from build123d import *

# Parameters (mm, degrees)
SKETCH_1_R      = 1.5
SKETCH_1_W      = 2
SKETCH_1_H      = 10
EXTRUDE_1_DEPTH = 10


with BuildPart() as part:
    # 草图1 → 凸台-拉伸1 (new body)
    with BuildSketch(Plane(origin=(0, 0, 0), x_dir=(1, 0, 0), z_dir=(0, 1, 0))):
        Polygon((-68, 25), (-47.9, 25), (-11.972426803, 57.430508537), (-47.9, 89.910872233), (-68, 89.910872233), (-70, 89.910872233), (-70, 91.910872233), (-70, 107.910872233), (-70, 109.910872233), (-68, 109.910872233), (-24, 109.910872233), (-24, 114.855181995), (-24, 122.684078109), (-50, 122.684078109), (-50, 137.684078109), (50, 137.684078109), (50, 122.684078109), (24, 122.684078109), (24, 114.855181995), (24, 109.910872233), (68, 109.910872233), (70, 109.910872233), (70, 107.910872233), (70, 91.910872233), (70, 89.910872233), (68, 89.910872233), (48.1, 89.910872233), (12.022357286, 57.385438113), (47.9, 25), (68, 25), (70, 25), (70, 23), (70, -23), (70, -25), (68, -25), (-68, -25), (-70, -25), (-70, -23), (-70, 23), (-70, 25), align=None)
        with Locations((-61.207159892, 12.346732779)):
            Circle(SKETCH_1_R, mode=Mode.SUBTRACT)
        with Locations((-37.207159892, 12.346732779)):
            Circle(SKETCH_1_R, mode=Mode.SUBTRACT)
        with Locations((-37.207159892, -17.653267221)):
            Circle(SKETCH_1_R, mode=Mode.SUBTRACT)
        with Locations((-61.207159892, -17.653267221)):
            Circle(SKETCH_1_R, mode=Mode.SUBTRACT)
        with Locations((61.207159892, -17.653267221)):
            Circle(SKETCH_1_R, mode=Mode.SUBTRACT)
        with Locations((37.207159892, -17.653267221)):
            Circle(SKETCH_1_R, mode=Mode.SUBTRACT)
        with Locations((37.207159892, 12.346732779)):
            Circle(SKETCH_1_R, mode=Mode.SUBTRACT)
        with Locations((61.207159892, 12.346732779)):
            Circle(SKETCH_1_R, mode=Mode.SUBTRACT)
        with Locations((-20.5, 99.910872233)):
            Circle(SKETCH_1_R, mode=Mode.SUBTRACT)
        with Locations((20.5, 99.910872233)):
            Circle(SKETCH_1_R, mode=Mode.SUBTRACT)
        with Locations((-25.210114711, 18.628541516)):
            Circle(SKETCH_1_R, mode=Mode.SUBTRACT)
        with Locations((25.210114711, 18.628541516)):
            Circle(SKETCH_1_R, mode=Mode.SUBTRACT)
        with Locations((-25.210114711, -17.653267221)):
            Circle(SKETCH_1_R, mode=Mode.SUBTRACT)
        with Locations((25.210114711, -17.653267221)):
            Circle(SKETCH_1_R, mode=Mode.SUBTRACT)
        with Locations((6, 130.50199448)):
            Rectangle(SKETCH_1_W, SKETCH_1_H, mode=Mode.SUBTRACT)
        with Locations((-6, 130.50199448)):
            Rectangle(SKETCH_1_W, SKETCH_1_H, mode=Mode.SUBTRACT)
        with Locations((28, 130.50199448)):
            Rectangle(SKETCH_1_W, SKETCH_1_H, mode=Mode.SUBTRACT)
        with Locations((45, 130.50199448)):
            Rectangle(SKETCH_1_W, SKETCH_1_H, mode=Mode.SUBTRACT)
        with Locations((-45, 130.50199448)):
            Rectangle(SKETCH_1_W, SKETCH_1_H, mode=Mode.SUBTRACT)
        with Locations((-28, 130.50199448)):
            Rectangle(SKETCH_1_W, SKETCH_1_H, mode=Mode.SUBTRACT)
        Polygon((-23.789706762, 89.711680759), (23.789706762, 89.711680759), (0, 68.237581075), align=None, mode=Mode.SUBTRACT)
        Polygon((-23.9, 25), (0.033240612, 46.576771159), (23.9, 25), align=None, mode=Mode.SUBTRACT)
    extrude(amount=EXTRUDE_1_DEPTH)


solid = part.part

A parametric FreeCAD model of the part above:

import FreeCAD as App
import Part
import Sketcher

V = App.Vector


def add_polygon(sketch, points):
    """Adds a closed chain of lines whose ends are joined by coincident constraints."""
    first, n = sketch.GeometryCount, len(points)
    for a, b in zip(points, points[1:] + points[:1]):
        sketch.addGeometry(Part.LineSegment(App.Vector(*a, 0), App.Vector(*b, 0)), False)
    for i in range(n):
        sketch.addConstraint(Sketcher.Constraint("Coincident", first + i, 2, first + (i + 1) % n, 1))

doc = App.newDocument("Part")
params = doc.addObject("Spreadsheet::Sheet", "Params")
for row, (alias, value) in enumerate([
    ("sketch1_diameter", "3 mm"),
    ("sketch1_width", "140 mm"),
    ("sketch1_width2", "46 mm"),
    ("sketch1_width3", "26 mm"),
    ("sketch1_width4", "2 mm"),
    ("pad1_length", "10 mm"),
], start=1):
    params.set(f"A{row}", alias)
    params.set(f"B{row}", "=" + value)
    params.setAlias(f"B{row}", alias)

body = doc.addObject("PartDesign::Body", "Body")

# Sketch on XZ plane
sketch1 = doc.addObject("Sketcher::SketchObject", "Sketch")
body.addObject(sketch1)
sketch1.AttachmentSupport = (doc.XZ_Plane, [""])
sketch1.MapMode = "FlatFace"
add_polygon(sketch1, [(-47.9, -25), (-70, -25), (-70, 25), (70, 25), (70, -25), (47.9, -25), (12, -57.4), (48.1, -89.9), (70, -89.9), (70, -109.9), (24, -109.9), (24, -122.7), (50, -122.7), (50, -137.7), (-50, -137.7), (-50, -122.7), (-24, -122.7), (-24, -109.9), (-70, -109.9), (-70, -89.9), (-47.9, -89.9), (-12, -57.4)])  # lines 0-21
sketch1.addGeometry(Part.Circle(V(61.2, 17.7, 0), V(0, 0, 1), 1.5), False)  # 22
sketch1.addGeometry(Part.Circle(V(37.2, 17.7, 0), V(0, 0, 1), 1.5), False)  # 23
sketch1.addGeometry(Part.Circle(V(61.2, -12.3, 0), V(0, 0, 1), 1.5), False)  # 24
sketch1.addGeometry(Part.Circle(V(37.2, -12.3, 0), V(0, 0, 1), 1.5), False)  # 25
sketch1.addGeometry(Part.Circle(V(25.2, 17.7, 0), V(0, 0, 1), 1.5), False)  # 26
sketch1.addGeometry(Part.Circle(V(25.2, -18.6, 0), V(0, 0, 1), 1.5), False)  # 27
sketch1.addGeometry(Part.Circle(V(-25.2, 17.7, 0), V(0, 0, 1), 1.5), False)  # 28
sketch1.addGeometry(Part.Circle(V(-25.2, -18.6, 0), V(0, 0, 1), 1.5), False)  # 29
sketch1.addGeometry(Part.Circle(V(-37.2, 17.7, 0), V(0, 0, 1), 1.5), False)  # 30
sketch1.addGeometry(Part.Circle(V(-61.2, 17.7, 0), V(0, 0, 1), 1.5), False)  # 31
sketch1.addGeometry(Part.Circle(V(-37.2, -12.3, 0), V(0, 0, 1), 1.5), False)  # 32
sketch1.addGeometry(Part.Circle(V(-61.2, -12.3, 0), V(0, 0, 1), 1.5), False)  # 33
add_polygon(sketch1, [(-23.9, -25), (0, -46.6), (23.9, -25)])  # lines 34-36
add_polygon(sketch1, [(44, -125.5), (44, -135.5), (46, -135.5), (46, -125.5)])  # lines 37-40
sketch1.addGeometry(Part.Circle(V(20.5, -99.9, 0), V(0, 0, 1), 1.5), False)  # 41
add_polygon(sketch1, [(27, -125.5), (27, -135.5), (29, -135.5), (29, -125.5)])  # lines 42-45
add_polygon(sketch1, [(5, -125.5), (5, -135.5), (7, -135.5), (7, -125.5)])  # lines 46-49
add_polygon(sketch1, [(-23.8, -89.7), (23.8, -89.7), (0, -68.2)])  # lines 50-52
sketch1.addGeometry(Part.Circle(V(-20.5, -99.9, 0), V(0, 0, 1), 1.5), False)  # 53
add_polygon(sketch1, [(-7, -125.5), (-7, -135.5), (-5, -135.5), (-5, -125.5)])  # lines 54-57
add_polygon(sketch1, [(-29, -125.5), (-29, -135.5), (-27, -135.5), (-27, -125.5)])  # lines 58-61
add_polygon(sketch1, [(-46, -125.5), (-46, -135.5), (-44, -135.5), (-44, -125.5)])  # lines 62-65
sketch1.addConstraint(Sketcher.Constraint("Horizontal", 0))
sketch1.addConstraint(Sketcher.Constraint("Vertical", 1))
sketch1.addConstraint(Sketcher.Constraint("Horizontal", 2))
sketch1.addConstraint(Sketcher.Constraint("Vertical", 3))
sketch1.addConstraint(Sketcher.Constraint("Horizontal", 4))
sketch1.addConstraint(Sketcher.Constraint("Horizontal", 7))
sketch1.addConstraint(Sketcher.Constraint("Vertical", 8))
sketch1.addConstraint(Sketcher.Constraint("Horizontal", 9))
sketch1.addConstraint(Sketcher.Constraint("Vertical", 10))
sketch1.addConstraint(Sketcher.Constraint("Horizontal", 11))
sketch1.addConstraint(Sketcher.Constraint("Vertical", 12))
sketch1.addConstraint(Sketcher.Constraint("Horizontal", 13))
sketch1.addConstraint(Sketcher.Constraint("Vertical", 14))
sketch1.addConstraint(Sketcher.Constraint("Horizontal", 15))
sketch1.addConstraint(Sketcher.Constraint("Vertical", 16))
sketch1.addConstraint(Sketcher.Constraint("Horizontal", 17))
sketch1.addConstraint(Sketcher.Constraint("Vertical", 18))
sketch1.addConstraint(Sketcher.Constraint("Horizontal", 19))
sketch1.addConstraint(Sketcher.Constraint("Horizontal", 36))
sketch1.addConstraint(Sketcher.Constraint("Vertical", 37))
sketch1.addConstraint(Sketcher.Constraint("Horizontal", 38))
sketch1.addConstraint(Sketcher.Constraint("Vertical", 39))
sketch1.addConstraint(Sketcher.Constraint("Horizontal", 40))
sketch1.addConstraint(Sketcher.Constraint("Vertical", 42))
sketch1.addConstraint(Sketcher.Constraint("Horizontal", 43))
sketch1.addConstraint(Sketcher.Constraint("Vertical", 44))
sketch1.addConstraint(Sketcher.Constraint("Horizontal", 45))
sketch1.addConstraint(Sketcher.Constraint("Vertical", 46))
sketch1.addConstraint(Sketcher.Constraint("Horizontal", 47))
sketch1.addConstraint(Sketcher.Constraint("Vertical", 48))
sketch1.addConstraint(Sketcher.Constraint("Horizontal", 49))
sketch1.addConstraint(Sketcher.Constraint("Horizontal", 50))
sketch1.addConstraint(Sketcher.Constraint("Vertical", 54))
sketch1.addConstraint(Sketcher.Constraint("Horizontal", 55))
sketch1.addConstraint(Sketcher.Constraint("Vertical", 56))
sketch1.addConstraint(Sketcher.Constraint("Horizontal", 57))
sketch1.addConstraint(Sketcher.Constraint("Vertical", 58))
sketch1.addConstraint(Sketcher.Constraint("Horizontal", 59))
sketch1.addConstraint(Sketcher.Constraint("Vertical", 60))
sketch1.addConstraint(Sketcher.Constraint("Horizontal", 61))
sketch1.addConstraint(Sketcher.Constraint("Vertical", 62))
sketch1.addConstraint(Sketcher.Constraint("Horizontal", 63))
sketch1.addConstraint(Sketcher.Constraint("Vertical", 64))
sketch1.addConstraint(Sketcher.Constraint("Horizontal", 65))
sketch1.addConstraint(Sketcher.Constraint("Equal", 22, 23))
sketch1.addConstraint(Sketcher.Constraint("Equal", 23, 24))
sketch1.addConstraint(Sketcher.Constraint("Equal", 24, 25))
sketch1.addConstraint(Sketcher.Constraint("Equal", 25, 26))
sketch1.addConstraint(Sketcher.Constraint("Equal", 26, 27))
sketch1.addConstraint(Sketcher.Constraint("Equal", 27, 28))
sketch1.addConstraint(Sketcher.Constraint("Equal", 28, 29))
sketch1.addConstraint(Sketcher.Constraint("Equal", 29, 30))
sketch1.addConstraint(Sketcher.Constraint("Equal", 30, 31))
sketch1.addConstraint(Sketcher.Constraint("Equal", 31, 32))
sketch1.addConstraint(Sketcher.Constraint("Equal", 32, 33))
sketch1.addConstraint(Sketcher.Constraint("Equal", 33, 41))
sketch1.addConstraint(Sketcher.Constraint("Equal", 41, 53))
sketch1.addConstraint(Sketcher.Constraint("Symmetric", 0, 2, 2, 2, -1, 1))
sketch1.addConstraint(Sketcher.Constraint("Symmetric", 26, 3, 28, 3, -2))
sketch1.addConstraint(Sketcher.Constraint("Symmetric", 27, 3, 29, 3, -2))
sketch1.addConstraint(Sketcher.Constraint("Symmetric", 23, 3, 30, 3, -2))
sketch1.addConstraint(Sketcher.Constraint("Symmetric", 22, 3, 31, 3, -2))
sketch1.addConstraint(Sketcher.Constraint("Symmetric", 25, 3, 32, 3, -2))
sketch1.addConstraint(Sketcher.Constraint("Symmetric", 24, 3, 33, 3, -2))
sketch1.addConstraint(Sketcher.Constraint("Symmetric", 41, 3, 53, 3, -2))
sketch1.addConstraint(Sketcher.Constraint("Symmetric", 11, 2, 14, 2, -2))
sketch1.addConstraint(Sketcher.Constraint("Symmetric", 9, 2, 16, 2, -2))
sketch1.addConstraint(Sketcher.Constraint("Symmetric", 7, 2, 18, 2, -2))
sketch1.addConstraint(Sketcher.Constraint("Symmetric", 4, 2, 21, 2, -2))
sketch1.addConstraint(Sketcher.Constraint("Symmetric", 47, 2, 54, 2, -2))
sketch1.addConstraint(Sketcher.Constraint("Symmetric", 49, 2, 56, 2, -2))
sketch1.addConstraint(Sketcher.Constraint("Symmetric", 43, 2, 58, 2, -2))
sketch1.addConstraint(Sketcher.Constraint("Symmetric", 45, 2, 60, 2, -2))
sketch1.addConstraint(Sketcher.Constraint("Symmetric", 38, 2, 62, 2, -2))
sketch1.addConstraint(Sketcher.Constraint("Symmetric", 40, 2, 64, 2, -2))
sketch1.addConstraint(Sketcher.Constraint("PointOnObject", 51, 2, -2))
sketch1.addConstraint(Sketcher.Constraint("Parallel", 6, 34))
sketch1.addConstraint(Sketcher.Constraint("Parallel", 20, 35))
sketch1.addConstraint(Sketcher.Constraint("Parallel", 21, 51))
sketch1.addConstraint(Sketcher.Constraint("Parallel", 5, 52))
sketch1.addConstraint(Sketcher.Constraint("Horizontal", 22, 3, 23, 3))
sketch1.addConstraint(Sketcher.Constraint("Horizontal", 24, 3, 25, 3))
sketch1.addConstraint(Sketcher.Constraint("Horizontal", 23, 3, 26, 3))
sketch1.addConstraint(Sketcher.Constraint("Horizontal", 21, 2, 35, 2))
sketch1.addConstraint(Sketcher.Constraint("Horizontal", 38, 2, 42, 2))
sketch1.addConstraint(Sketcher.Constraint("Horizontal", 40, 2, 44, 2))
sketch1.addConstraint(Sketcher.Constraint("Horizontal", 43, 2, 46, 2))
sketch1.addConstraint(Sketcher.Constraint("Horizontal", 45, 2, 48, 2))
sketch1.addConstraint(Sketcher.Constraint("Vertical", 22, 3, 24, 3))
sketch1.addConstraint(Sketcher.Constraint("Vertical", 23, 3, 25, 3))
sketch1.addConstraint(Sketcher.Constraint("Vertical", 26, 3, 27, 3))
sketch1.addConstraint(Sketcher.Constraint("Vertical", 3, 2, 7, 2))
sketch1.addConstraint(Sketcher.Constraint("Vertical", 19, 2, 21, 2))
sketch1.addConstraint(Sketcher.Constraint("Equal", 40, 43))
sketch1.addConstraint(Sketcher.Constraint("Equal", 45, 47))
sketch1.addConstraint(Sketcher.Constraint("Equal", 51, 52))
sketch1.addConstraint(Sketcher.Constraint("Diameter", 22, 3.0))
sketch1.addConstraint(Sketcher.Constraint("DistanceX", 2, 1, 2, 2, 140.0))
sketch1.addConstraint(Sketcher.Constraint("DistanceX", 9, 2, 9, 1, 46.0))
sketch1.addConstraint(Sketcher.Constraint("DistanceX", 11, 1, 11, 2, 26.0))
sketch1.addConstraint(Sketcher.Constraint("DistanceX", 38, 1, 38, 2, 2.0))
sketch1.addConstraint(Sketcher.Constraint("DistanceY", 1, 1, 1, 2, 50.0))
sketch1.addConstraint(Sketcher.Constraint("DistanceY", 8, 2, 8, 1, 20.0))
sketch1.addConstraint(Sketcher.Constraint("DistanceY", 12, 2, 12, 1, 15.0))
sketch1.addConstraint(Sketcher.Constraint("DistanceY", 37, 2, 37, 1, 10.0))
sketch1.addConstraint(Sketcher.Constraint("DistanceX", 0, 2, 0, 1, 22.1))
sketch1.addConstraint(Sketcher.Constraint("DistanceX", 7, 1, 7, 2, 21.9))
sketch1.addConstraint(Sketcher.Constraint("DistanceX", 36, 2, 36, 1, 47.8))
sketch1.addConstraint(Sketcher.Constraint("DistanceX", -1, 1, 37, 2, 44.0))
sketch1.addConstraint(Sketcher.Constraint("DistanceX", -1, 1, 42, 2, 27.0))
sketch1.addConstraint(Sketcher.Constraint("DistanceX", -1, 1, 46, 2, 5.0))
sketch1.addConstraint(Sketcher.Constraint("DistanceX", -1, 1, 41, 3, 20.5))
sketch1.addConstraint(Sketcher.Constraint("DistanceX", -1, 1, 35, 2, 23.9))
sketch1.addConstraint(Sketcher.Constraint("Distance", 35, 32.174202))
sketch1.addConstraint(Sketcher.Constraint("Distance", 51, 32.0482))
sketch1.addConstraint(Sketcher.Constraint("Distance", 5, 48.33241))
sketch1.addConstraint(Sketcher.Constraint("Distance", 34, 32.223548))
sketch1.addConstraint(Sketcher.Constraint("DistanceX", 50, 1, 50, 2, 47.579414))
sketch1.addConstraint(Sketcher.Constraint("DistanceY", 10, 2, 10, 1, 12.773206))
sketch1.addConstraint(Sketcher.Constraint("DistanceX", -1, 1, 22, 3, 61.20716))
sketch1.addConstraint(Sketcher.Constraint("DistanceX", -1, 1, 23, 3, 37.20716))
sketch1.addConstraint(Sketcher.Constraint("DistanceY", 27, 3, -1, 1, 18.628542))
sketch1.addConstraint(Sketcher.Constraint("DistanceY", 50, 2, -1, 1, 89.711681))
sketch1.addConstraint(Sketcher.Constraint("DistanceY", -1, 1, 22, 3, 17.653267))
sketch1.addConstraint(Sketcher.Constraint("DistanceY", 24, 3, -1, 1, 12.346733))
sketch1.addConstraint(Sketcher.Constraint("DistanceX", -1, 1, 26, 3, 25.210115))
sketch1.addConstraint(Sketcher.Constraint("DistanceY", 41, 3, -1, 1, 99.910872))
sketch1.addConstraint(Sketcher.Constraint("DistanceY", 37, 2, -1, 1, 135.501994))
sketch1.setExpression("Constraints[148]", "Params.sketch1_diameter")
sketch1.setExpression("Constraints[149]", "Params.sketch1_width")
sketch1.setExpression("Constraints[150]", "Params.sketch1_width2")
sketch1.setExpression("Constraints[151]", "Params.sketch1_width3")
sketch1.setExpression("Constraints[152]", "Params.sketch1_width4")
pad1 = doc.addObject("PartDesign::Pad", "Pad")
body.addObject(pad1)
pad1.Profile = sketch1
pad1.setExpression("Length", "Params.pad1_length")
pad1.Reversed = True

doc.recompute()
